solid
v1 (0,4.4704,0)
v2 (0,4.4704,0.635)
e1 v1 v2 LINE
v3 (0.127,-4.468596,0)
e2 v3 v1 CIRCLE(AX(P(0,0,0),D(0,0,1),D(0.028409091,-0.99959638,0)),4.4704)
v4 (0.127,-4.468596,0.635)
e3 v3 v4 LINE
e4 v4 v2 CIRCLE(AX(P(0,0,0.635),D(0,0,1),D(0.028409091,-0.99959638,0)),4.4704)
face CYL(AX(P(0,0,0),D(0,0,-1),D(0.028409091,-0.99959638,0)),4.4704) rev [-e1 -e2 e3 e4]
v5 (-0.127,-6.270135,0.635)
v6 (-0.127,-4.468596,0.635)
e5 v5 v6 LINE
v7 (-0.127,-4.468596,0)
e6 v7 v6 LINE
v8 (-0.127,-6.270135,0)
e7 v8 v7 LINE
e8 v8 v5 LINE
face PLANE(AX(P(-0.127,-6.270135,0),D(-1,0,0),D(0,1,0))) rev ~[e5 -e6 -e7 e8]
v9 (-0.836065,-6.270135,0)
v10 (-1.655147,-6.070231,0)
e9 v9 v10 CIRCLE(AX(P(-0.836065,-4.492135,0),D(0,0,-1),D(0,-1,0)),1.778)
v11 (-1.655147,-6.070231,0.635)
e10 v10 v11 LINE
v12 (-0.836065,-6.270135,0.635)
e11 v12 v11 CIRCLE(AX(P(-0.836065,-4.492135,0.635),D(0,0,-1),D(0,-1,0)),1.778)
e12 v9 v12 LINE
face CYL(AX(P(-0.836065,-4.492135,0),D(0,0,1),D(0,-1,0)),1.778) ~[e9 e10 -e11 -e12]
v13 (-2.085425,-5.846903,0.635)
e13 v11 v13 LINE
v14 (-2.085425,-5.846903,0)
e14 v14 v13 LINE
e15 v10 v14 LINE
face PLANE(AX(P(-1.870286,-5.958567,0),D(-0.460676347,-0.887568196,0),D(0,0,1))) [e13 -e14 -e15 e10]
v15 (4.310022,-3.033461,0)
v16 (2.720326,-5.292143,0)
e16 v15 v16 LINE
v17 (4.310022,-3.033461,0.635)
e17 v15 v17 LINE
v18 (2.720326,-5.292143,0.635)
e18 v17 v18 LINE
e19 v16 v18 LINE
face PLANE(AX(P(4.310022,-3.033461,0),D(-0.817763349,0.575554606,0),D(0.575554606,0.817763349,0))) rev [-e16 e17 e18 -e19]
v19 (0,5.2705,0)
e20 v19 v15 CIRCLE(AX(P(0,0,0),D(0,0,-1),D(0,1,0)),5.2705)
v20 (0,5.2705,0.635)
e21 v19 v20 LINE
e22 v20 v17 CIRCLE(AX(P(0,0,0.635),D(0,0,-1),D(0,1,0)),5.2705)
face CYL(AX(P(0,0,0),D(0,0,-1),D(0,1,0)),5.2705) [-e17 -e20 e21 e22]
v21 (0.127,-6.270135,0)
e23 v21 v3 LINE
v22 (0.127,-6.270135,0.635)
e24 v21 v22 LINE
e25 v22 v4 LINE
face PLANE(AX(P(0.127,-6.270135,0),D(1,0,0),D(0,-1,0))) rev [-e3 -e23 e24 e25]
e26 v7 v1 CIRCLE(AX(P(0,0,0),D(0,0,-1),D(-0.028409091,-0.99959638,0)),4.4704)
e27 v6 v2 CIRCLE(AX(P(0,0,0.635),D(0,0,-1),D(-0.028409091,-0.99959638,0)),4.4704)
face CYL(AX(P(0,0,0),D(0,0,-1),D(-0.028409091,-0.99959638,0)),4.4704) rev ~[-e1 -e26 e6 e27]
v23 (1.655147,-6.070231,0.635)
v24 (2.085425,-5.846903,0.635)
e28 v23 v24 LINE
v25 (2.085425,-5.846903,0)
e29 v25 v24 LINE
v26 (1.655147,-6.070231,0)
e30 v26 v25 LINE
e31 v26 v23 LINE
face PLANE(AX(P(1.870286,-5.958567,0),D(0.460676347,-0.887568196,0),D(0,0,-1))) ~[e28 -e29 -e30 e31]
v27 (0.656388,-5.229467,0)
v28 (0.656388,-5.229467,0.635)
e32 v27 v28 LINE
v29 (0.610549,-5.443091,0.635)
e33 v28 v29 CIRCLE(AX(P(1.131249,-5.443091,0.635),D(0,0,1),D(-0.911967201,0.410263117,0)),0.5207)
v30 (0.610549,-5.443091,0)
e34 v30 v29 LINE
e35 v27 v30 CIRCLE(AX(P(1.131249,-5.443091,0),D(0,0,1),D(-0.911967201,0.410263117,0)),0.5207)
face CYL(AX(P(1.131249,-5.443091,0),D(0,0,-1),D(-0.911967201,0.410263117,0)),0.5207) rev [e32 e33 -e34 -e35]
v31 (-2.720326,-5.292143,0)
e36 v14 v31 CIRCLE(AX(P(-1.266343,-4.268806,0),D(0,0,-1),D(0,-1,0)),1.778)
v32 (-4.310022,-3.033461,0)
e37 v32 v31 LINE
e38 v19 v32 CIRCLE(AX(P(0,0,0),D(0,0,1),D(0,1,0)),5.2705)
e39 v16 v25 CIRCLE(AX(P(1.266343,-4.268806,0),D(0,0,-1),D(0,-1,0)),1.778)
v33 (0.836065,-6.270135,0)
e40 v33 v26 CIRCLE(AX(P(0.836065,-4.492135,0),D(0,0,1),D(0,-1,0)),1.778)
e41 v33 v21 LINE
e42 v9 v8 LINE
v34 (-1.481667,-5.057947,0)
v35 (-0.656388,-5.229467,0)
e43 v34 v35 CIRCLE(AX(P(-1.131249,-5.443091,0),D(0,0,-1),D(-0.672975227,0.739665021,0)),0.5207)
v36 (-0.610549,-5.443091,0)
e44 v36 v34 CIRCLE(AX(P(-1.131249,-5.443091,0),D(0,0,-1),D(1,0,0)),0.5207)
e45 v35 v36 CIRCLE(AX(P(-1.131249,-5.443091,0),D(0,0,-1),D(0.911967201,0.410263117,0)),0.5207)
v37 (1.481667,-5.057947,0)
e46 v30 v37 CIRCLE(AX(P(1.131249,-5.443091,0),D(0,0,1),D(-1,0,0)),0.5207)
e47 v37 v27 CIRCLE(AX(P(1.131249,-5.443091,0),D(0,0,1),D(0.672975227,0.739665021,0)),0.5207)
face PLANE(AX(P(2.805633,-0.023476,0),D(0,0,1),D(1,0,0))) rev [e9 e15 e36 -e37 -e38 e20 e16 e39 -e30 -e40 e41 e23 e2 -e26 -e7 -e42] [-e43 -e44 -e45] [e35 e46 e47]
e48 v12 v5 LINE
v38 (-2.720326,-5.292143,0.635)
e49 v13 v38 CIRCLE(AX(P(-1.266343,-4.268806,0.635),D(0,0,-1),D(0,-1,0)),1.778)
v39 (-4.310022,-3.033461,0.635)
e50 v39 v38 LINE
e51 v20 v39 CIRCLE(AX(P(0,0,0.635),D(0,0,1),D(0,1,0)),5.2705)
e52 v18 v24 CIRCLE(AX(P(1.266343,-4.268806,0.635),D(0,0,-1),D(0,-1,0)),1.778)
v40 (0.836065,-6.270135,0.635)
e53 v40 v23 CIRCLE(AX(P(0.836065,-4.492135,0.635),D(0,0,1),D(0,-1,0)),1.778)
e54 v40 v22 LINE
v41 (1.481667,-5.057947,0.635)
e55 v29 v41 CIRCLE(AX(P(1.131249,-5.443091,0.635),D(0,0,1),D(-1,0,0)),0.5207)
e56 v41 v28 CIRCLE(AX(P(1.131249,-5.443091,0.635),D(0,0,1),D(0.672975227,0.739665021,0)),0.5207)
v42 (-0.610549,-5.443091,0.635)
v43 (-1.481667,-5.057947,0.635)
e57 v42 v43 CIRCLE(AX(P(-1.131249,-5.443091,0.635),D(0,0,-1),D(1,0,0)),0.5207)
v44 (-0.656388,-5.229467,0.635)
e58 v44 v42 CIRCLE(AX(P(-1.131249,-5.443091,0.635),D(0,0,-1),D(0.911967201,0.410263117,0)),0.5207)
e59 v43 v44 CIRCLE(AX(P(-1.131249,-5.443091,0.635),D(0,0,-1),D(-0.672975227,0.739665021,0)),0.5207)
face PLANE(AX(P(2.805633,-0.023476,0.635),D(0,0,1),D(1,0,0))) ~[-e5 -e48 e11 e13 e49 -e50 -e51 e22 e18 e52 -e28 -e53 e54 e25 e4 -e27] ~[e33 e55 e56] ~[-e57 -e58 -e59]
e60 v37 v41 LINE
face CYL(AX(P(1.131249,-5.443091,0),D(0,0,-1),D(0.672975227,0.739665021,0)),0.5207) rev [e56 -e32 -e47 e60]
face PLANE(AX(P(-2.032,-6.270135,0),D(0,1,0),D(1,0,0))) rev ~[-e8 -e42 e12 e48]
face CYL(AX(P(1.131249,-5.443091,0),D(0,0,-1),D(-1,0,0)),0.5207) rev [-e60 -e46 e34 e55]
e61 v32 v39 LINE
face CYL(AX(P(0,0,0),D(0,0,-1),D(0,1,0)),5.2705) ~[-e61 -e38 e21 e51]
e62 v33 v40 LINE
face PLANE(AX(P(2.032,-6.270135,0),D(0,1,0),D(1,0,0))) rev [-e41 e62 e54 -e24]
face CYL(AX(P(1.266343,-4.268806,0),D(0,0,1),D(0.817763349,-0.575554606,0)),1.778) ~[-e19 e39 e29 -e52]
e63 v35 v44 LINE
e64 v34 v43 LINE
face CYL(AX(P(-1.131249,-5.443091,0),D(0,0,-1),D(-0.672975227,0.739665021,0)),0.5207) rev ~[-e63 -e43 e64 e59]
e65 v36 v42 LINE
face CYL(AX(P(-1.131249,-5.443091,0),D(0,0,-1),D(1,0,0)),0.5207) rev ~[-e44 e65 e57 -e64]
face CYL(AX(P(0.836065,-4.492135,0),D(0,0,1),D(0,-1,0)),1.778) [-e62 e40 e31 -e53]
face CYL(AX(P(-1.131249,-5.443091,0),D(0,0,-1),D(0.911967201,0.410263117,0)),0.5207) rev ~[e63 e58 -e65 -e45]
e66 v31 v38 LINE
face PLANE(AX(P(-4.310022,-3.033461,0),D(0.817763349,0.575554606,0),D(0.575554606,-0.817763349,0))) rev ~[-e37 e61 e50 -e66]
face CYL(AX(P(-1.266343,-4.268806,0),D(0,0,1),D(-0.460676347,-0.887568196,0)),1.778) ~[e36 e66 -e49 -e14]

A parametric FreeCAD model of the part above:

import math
import FreeCAD as App
import Part
import Sketcher
Q = App.Units.Quantity


def edges_at(feature, points):
    """Names of the edges that pass closest to the given points."""
    edges = feature.Shape.Edges
    near = lambda p: min(range(len(edges)), key=lambda i: edges[i].distToShape(Part.Vertex(*p))[0])
    return sorted({f"Edge{near(p) + 1}" for p in points})

doc = App.newDocument("Part")
body = doc.addObject("PartDesign::Body", "Body")

# Sketch on XY plane
sketch1 = body.newObject("Sketcher::SketchObject", "Sketch")
sketch1.AttachmentSupport = (doc.getObject("XY_Plane"), [""])
sketch1.MapMode = "FlatFace"
sketch1.addGeometry(Part.ArcOfCircle(Part.Circle(App.Vector(0, 0, 0), App.Vector(0, 0, 1), 4.47), math.radians(90), math.radians(268)), False)
sketch1.addGeometry(Part.LineSegment(App.Vector(0, 4.47, 0), App.Vector(0, 5.27, 0)), False)
sketch1.addGeometry(Part.ArcOfCircle(Part.Circle(App.Vector(0, 0, 0), App.Vector(0, 0, 1), 5.27), math.radians(90), math.radians(215)), False)
sketch1.addGeometry(Part.LineSegment(App.Vector(-4.31, -3.03, 0), App.Vector(-2.03, -6.27, 0)), False)
sketch1.addGeometry(Part.LineSegment(App.Vector(-2.03, -6.27, 0), App.Vector(-0.13, -6.27, 0)), False)
sketch1.addGeometry(Part.LineSegment(App.Vector(-0.13, -6.27, 0), App.Vector(-0.13, -4.47, 0)), False)
sketch1.addGeometry(Part.ArcOfCircle(Part.Circle(App.Vector(-1.13, -5.44, 0), App.Vector(0, 0, 1), 0.52), math.radians(24), math.radians(132)), False)
sketch1.addGeometry(Part.ArcOfCircle(Part.Circle(App.Vector(-1.13, -5.44, 0), App.Vector(0, 0, 1), 0.52), math.radians(0), math.radians(24)), False)
sketch1.addGeometry(Part.ArcOfCircle(Part.Circle(App.Vector(-1.13, -5.44, 0), App.Vector(0, 0, 1), 0.52), math.radians(132), math.radians(360)), False)
sketch1.addConstraint(Sketcher.Constraint("Coincident", 0, 1, 1, 1))
sketch1.addConstraint(Sketcher.Constraint("Coincident", 1, 2, 2, 1))
sketch1.addConstraint(Sketcher.Constraint("Tangent", 2, 2, 3, 1))
sketch1.addConstraint(Sketcher.Constraint("Coincident", 3, 2, 4, 1))
sketch1.addConstraint(Sketcher.Constraint("Coincident", 4, 2, 5, 1))
sketch1.addConstraint(Sketcher.Constraint("Coincident", 5, 2, 0, 2))
sketch1.addConstraint(Sketcher.Constraint("Tangent", 6, 1, 7, 2))
sketch1.addConstraint(Sketcher.Constraint("Tangent", 7, 1, 8, 2))
sketch1.addConstraint(Sketcher.Constraint("Tangent", 8, 1, 6, 2))
sketch1.addConstraint(Sketcher.Constraint("Vertical", 1))
sketch1.addConstraint(Sketcher.Constraint("Horizontal", 4))
sketch1.addConstraint(Sketcher.Constraint("Vertical", 5))
sketch1.addConstraint(Sketcher.Constraint("Coincident", 0, 3, -1, 1))
sketch1.addConstraint(Sketcher.Constraint("Coincident", 2, 3, -1, 1))
sketch1.addConstraint(Sketcher.Constraint("PointOnObject", 0, 1, -2))
sketch1.addConstraint(Sketcher.Constraint("Horizontal", 8, 3, 7, 1))
sketch1.addConstraint(Sketcher.Constraint("Radius", 0, Q("0.176 in")))
sketch1.addConstraint(Sketcher.Constraint("Radius", 2, Q("0.2075 in")))
sketch1.addConstraint(Sketcher.Constraint("Radius", 6, Q("0.0205 in")))
sketch1.addConstraint(Sketcher.Constraint("DistanceX", 4, 1, 4, 2, Q("0.075 in")))
sketch1.addConstraint(Sketcher.Constraint("DistanceX", 3, 2, -1, 1, Q("0.08 in")))
sketch1.addConstraint(Sketcher.Constraint("DistanceY", 5, 1, 5, 2, 1.801539))
sketch1.addConstraint(Sketcher.Constraint("DistanceX", 6, 3, -1, 1, 1.131249))
sketch1.addConstraint(Sketcher.Constraint("DistanceY", 6, 3, -1, 1, 5.443091))
sketch1.addConstraint(Sketcher.Constraint("DistanceX", 6, 3, 6, 1, 0.474861))
sketch1.addConstraint(Sketcher.Constraint("DistanceX", 8, 1, 7, 3, 0.350418))
pad1 = body.newObject("PartDesign::Pad", "Pad")
pad1.Profile = sketch1
pad1.Length = Q("0.025 in")
body2 = doc.addObject("PartDesign::Body", "Body001")
doc.recompute()

body2.BaseFeature = body
doc.recompute()

mirroring = doc.addObject("Part::Mirroring", "Mirroring")
mirroring.Source = body
mirroring.Base = App.Vector(0, 0, 0)
mirroring.Normal = App.Vector(1, 0, 0)
body3 = doc.addObject("PartDesign::Body", "Body002")
body3.BaseFeature = mirroring
boolean = body2.newObject("PartDesign::Boolean", "Boolean")
boolean.Type = "Fuse"
boolean.addObjects([body3])
doc.recompute()

chamfer = body2.newObject("PartDesign::Chamfer", "Chamfer")
chamfer.Base = (boolean, edges_at(boolean, [(-2.032, -6.27, 0.318), (2.032, -6.27, 0.318)]))
chamfer.Size = Q("0.03 in")
doc.recompute()

fillet = body2.newObject("PartDesign::Fillet", "Fillet")
fillet.Base = (chamfer, edges_at(chamfer, [
    (-1.27, -6.27, 0.318),
    (-2.471, -5.647, 0.318),
    (1.27, -6.27, 0.318),
    (2.471, -5.647, 0.318),
]))
fillet.Radius = Q("0.07 in")
mirroring.Visibility = False

doc.recompute()
